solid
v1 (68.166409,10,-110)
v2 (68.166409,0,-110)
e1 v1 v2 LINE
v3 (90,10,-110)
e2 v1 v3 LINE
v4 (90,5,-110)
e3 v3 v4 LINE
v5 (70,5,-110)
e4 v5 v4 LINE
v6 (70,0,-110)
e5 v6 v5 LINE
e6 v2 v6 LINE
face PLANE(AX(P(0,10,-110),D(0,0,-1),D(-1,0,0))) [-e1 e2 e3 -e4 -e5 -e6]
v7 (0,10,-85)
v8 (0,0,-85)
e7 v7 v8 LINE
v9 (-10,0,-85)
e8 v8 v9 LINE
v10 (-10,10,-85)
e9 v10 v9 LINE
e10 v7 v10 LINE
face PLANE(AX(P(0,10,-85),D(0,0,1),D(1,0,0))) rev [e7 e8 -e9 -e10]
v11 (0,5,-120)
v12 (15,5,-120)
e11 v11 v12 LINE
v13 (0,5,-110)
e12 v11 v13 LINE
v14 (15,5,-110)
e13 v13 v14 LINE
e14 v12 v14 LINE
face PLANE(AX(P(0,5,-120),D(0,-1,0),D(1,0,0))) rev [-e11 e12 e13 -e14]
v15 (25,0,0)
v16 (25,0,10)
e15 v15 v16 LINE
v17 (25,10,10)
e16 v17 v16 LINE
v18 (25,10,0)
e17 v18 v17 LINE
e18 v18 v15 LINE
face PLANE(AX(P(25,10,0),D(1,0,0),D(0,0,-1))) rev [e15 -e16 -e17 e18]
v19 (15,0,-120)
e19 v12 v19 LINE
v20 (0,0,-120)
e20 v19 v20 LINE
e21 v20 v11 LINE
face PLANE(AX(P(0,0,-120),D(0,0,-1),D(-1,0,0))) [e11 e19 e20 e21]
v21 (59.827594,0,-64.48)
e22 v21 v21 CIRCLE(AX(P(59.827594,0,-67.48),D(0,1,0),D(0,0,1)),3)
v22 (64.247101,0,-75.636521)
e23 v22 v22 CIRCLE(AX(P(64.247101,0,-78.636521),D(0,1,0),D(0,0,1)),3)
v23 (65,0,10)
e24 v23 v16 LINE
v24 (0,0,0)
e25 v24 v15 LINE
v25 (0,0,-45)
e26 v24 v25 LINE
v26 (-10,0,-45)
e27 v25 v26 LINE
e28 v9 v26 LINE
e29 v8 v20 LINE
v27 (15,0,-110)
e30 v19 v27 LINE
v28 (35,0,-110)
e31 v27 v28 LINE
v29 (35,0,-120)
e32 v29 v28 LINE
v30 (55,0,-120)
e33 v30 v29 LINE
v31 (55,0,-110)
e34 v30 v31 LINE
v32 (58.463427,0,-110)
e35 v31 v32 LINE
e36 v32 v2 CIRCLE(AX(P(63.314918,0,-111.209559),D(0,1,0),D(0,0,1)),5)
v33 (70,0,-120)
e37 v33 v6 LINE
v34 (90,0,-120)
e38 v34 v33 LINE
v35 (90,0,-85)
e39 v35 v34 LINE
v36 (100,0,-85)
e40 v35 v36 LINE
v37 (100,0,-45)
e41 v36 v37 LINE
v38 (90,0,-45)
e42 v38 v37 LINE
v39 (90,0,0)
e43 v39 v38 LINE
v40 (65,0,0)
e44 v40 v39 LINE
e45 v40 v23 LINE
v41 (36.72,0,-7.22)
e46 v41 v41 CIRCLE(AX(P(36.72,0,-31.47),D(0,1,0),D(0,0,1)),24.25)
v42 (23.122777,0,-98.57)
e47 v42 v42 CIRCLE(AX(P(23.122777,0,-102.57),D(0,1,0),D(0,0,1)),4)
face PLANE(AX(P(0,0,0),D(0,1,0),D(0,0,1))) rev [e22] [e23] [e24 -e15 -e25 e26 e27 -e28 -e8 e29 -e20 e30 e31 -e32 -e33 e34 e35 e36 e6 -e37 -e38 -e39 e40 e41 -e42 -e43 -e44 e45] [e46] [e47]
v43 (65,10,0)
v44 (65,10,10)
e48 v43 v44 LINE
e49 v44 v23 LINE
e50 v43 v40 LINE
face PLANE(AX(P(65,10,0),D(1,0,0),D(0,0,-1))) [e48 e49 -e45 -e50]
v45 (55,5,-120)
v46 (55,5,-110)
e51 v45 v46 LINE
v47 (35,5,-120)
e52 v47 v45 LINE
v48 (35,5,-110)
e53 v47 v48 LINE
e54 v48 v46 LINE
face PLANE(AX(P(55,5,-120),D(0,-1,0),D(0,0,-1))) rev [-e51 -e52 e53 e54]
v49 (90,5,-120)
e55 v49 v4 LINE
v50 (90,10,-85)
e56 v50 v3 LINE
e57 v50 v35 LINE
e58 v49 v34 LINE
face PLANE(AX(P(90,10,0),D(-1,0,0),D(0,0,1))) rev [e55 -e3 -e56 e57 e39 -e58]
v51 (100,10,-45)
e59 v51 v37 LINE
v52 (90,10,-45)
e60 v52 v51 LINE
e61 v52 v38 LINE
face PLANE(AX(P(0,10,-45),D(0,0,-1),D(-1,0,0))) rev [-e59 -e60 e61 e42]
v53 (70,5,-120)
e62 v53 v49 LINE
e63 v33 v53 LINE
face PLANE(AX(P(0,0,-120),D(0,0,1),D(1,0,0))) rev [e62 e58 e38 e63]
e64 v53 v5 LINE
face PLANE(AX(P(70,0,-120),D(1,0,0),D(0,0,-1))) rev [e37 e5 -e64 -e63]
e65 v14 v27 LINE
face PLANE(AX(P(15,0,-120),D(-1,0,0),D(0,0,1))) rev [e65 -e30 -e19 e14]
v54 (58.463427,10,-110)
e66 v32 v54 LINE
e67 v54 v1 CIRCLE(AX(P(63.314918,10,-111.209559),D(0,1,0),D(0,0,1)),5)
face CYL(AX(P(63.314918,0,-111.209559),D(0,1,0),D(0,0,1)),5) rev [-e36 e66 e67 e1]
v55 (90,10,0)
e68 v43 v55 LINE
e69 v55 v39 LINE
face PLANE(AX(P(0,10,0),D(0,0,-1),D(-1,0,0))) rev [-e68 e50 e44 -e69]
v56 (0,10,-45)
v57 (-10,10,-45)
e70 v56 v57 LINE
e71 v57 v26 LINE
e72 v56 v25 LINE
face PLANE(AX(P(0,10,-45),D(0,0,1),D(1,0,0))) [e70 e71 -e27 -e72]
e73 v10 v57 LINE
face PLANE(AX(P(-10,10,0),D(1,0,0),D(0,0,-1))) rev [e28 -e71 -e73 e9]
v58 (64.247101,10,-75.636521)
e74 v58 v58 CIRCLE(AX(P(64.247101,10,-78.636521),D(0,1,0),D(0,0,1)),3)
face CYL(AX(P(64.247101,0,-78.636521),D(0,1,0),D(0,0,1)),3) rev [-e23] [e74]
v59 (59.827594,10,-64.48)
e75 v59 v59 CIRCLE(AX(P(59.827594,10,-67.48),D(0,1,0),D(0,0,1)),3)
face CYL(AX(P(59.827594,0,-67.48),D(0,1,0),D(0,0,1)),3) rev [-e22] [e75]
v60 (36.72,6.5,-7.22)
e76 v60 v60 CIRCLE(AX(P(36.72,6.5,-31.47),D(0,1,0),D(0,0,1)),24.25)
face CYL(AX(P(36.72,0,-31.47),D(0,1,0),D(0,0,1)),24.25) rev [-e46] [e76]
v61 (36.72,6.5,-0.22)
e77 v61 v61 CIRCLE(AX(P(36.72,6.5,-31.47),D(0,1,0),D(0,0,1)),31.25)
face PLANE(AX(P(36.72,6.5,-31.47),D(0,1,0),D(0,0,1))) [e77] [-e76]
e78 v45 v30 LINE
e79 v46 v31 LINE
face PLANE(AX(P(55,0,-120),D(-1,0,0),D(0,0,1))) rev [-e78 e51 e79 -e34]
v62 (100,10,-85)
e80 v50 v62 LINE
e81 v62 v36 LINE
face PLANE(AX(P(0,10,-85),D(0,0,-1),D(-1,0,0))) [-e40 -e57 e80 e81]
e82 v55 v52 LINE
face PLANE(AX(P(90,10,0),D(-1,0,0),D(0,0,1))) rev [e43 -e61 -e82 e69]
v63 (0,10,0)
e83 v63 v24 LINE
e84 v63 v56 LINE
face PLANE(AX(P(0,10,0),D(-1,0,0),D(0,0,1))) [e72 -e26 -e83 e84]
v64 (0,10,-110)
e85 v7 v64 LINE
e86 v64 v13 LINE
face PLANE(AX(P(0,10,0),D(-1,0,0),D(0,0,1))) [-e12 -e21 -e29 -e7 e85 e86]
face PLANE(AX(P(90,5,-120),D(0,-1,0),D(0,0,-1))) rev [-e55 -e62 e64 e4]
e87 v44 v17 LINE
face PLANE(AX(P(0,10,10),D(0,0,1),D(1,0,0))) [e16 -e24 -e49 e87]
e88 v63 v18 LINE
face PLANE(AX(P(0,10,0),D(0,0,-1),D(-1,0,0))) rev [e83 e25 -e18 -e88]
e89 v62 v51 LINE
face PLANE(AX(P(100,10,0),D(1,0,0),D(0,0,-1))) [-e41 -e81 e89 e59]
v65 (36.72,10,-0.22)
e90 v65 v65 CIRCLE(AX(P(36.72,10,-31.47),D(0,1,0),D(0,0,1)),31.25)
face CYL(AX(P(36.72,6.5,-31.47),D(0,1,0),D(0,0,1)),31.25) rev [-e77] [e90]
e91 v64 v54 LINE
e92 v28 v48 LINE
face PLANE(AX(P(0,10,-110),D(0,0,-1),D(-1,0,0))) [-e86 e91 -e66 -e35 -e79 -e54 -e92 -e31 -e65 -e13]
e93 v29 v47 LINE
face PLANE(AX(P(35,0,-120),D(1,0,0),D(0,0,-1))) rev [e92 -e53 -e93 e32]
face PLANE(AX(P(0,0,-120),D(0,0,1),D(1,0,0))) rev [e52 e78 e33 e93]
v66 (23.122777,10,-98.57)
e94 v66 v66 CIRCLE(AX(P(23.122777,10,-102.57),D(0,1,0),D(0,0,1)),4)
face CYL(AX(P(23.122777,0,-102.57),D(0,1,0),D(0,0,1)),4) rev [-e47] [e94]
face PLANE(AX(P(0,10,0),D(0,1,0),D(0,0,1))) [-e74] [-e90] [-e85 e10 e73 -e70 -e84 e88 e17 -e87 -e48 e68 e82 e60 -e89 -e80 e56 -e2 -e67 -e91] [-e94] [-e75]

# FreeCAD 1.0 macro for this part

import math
import FreeCAD as App
import Part
import Sketcher

V = App.Vector


def add_polygon(sketch, points):
    """Adds a closed chain of lines whose ends are joined by coincident constraints."""
    first, n = sketch.GeometryCount, len(points)
    for a, b in zip(points, points[1:] + points[:1]):
        sketch.addGeometry(Part.LineSegment(App.Vector(*a, 0), App.Vector(*b, 0)), False)
    for i in range(n):
        sketch.addConstraint(Sketcher.Constraint("Coincident", first + i, 2, first + (i + 1) % n, 1))

doc = App.newDocument("Part")
params = doc.addObject("Spreadsheet::Sheet", "Params")
for row, (alias, value) in enumerate([
    ("sketch1_width", "25 mm"),
    ("sketch1_width2", "40 mm"),
    ("sketch1_width3", "10 mm"),
    ("sketch1_height", "45 mm"),
    ("pad1_length", "10 mm"),
    ("sketch2_diameter", "8 mm"),
    ("sketch3_radius", "3 mm"),
    ("sketch4_diameter", "62.5 mm"),
    ("pocket3_length", "3.5 mm"),
    ("sketch5_diameter", "48.5 mm"),
    ("sketch6_diameter", "10 mm"),
    ("sketch7_width", "20 mm"),
    ("sketch7_width2", "15 mm"),
    ("sketch7_height", "5 mm"),
    ("pad2_length", "10 mm"),
], start=1):
    params.set(f"A{row}", alias)
    params.set(f"B{row}", "=" + value)
    params.setAlias(f"B{row}", alias)

body = doc.addObject("PartDesign::Body", "Body")

# Sketch on XZ plane
sketch1 = doc.addObject("Sketcher::SketchObject", "Sketch")
body.addObject(sketch1)
sketch1.AttachmentSupport = (doc.XZ_Plane, [""])
sketch1.MapMode = "FlatFace"
add_polygon(sketch1, [(0, -45), (0, 0), (25, 0), (25, 10), (65, 10), (65, 0), (90, 0), (90, -45), (100, -45), (100, -85), (90, -85), (90, -110), (0, -110), (0, -85), (-10, -85), (-10, -45)])  # lines 0-15
sketch1.addConstraint([
    Sketcher.Constraint("Vertical", 0),
    Sketcher.Constraint("Horizontal", 1),
    Sketcher.Constraint("Vertical", 2),
    Sketcher.Constraint("Horizontal", 3),
    Sketcher.Constraint("Vertical", 4),
    Sketcher.Constraint("Horizontal", 5),
    Sketcher.Constraint("Vertical", 6),
    Sketcher.Constraint("Horizontal", 7),
    Sketcher.Constraint("Vertical", 8),
    Sketcher.Constraint("Horizontal", 9),
    Sketcher.Constraint("Vertical", 10),
    Sketcher.Constraint("Horizontal", 11),
    Sketcher.Constraint("Vertical", 12),
    Sketcher.Constraint("Horizontal", 13),
    Sketcher.Constraint("Vertical", 14),
    Sketcher.Constraint("Horizontal", 15),
    Sketcher.Constraint("Coincident", 0, 2, -1, 1),
    Sketcher.Constraint("PointOnObject", 4, 2, -1),
    Sketcher.Constraint("PointOnObject", 11, 2, -2),
    Sketcher.Constraint("Horizontal", 9, 2, 12, 2),
    Sketcher.Constraint("Horizontal", 7, 2, 14, 2),
    Sketcher.Constraint("Vertical", 6, 2, 9, 2),
    Sketcher.Constraint("Equal", 1, 5),
    Sketcher.Constraint("Equal", 9, 13),
    Sketcher.Constraint("Equal", 15, 2),
    Sketcher.Constraint("Equal", 3, 8),
    Sketcher.Constraint("Equal", 5, 10),
    Sketcher.Constraint("DistanceX", 1, 1, 1, 2, 25.0),
    Sketcher.Constraint("DistanceX", 3, 1, 3, 2, 40.0),
    Sketcher.Constraint("DistanceX", 7, 1, 7, 2, 10.0),
    Sketcher.Constraint("DistanceY", 0, 1, 0, 2, 45.0),
])
sketch1.setExpression("Constraints[43]", "Params.sketch1_width")
sketch1.setExpression("Constraints[44]", "Params.sketch1_width2")
sketch1.setExpression("Constraints[45]", "Params.sketch1_width3")
sketch1.setExpression("Constraints[46]", "Params.sketch1_height")
pad1 = doc.addObject("PartDesign::Pad", "Pad")
body.addObject(pad1)
pad1.Profile = sketch1
pad1.setExpression("Length", "Params.pad1_length")
pad1.Reversed = True

# Sketch on XZ plane
sketch2 = doc.addObject("Sketcher::SketchObject", "Sketch001")
body.addObject(sketch2)
sketch2.AttachmentSupport = (doc.XZ_Plane, [""])
sketch2.MapMode = "FlatFace"
sketch2.AttachmentOffset = App.Placement(V(0, 0, -10), App.Rotation())
sketch2.addGeometry([
    Part.Circle(V(23.1, -102.6, 0), V(0, 0, 1), 4),
    Part.Circle(V(23.1, -120.4, 0), V(0, 0, 1), 4),
], False)
sketch2.addConstraint([
    Sketcher.Constraint("Equal", 0, 1),
    Sketcher.Constraint("Vertical", 0, 3, 1, 3),
    Sketcher.Constraint("Diameter", 0, 8.0),
    Sketcher.Constraint("DistanceY", 0, 3, -1, 1, 102.57),
    Sketcher.Constraint("DistanceY", 1, 3, -1, 1, 120.41),
    Sketcher.Constraint("DistanceX", -1, 1, 0, 3, 23.122777),
])
sketch2.setExpression("Constraints[2]", "Params.sketch2_diameter")
pocket1 = doc.addObject("PartDesign::Pocket", "Pocket")
body.addObject(pocket1)
pocket1.Profile = sketch2
pocket1.Type = "ThroughAll"
pocket1.Reversed = True

# Sketch on XZ plane
sketch3 = doc.addObject("Sketcher::SketchObject", "Sketch002")
body.addObject(sketch3)
sketch3.AttachmentSupport = (doc.XZ_Plane, [""])
sketch3.MapMode = "FlatFace"
sketch3.AttachmentOffset = App.Placement(V(0, 0, -10), App.Rotation())
sketch3.addGeometry([
    Part.ArcOfCircle(Part.Circle(V(64.2, -78.6, 0), V(0, 0, 1), 3), math.radians(112), math.radians(292)),  # 0
    Part.ArcOfCircle(Part.Circle(V(64.2, -78.6, 0), V(0, 0, 1), 3), math.radians(0), math.radians(112)),  # 1
    Part.ArcOfCircle(Part.Circle(V(64.2, -78.6, 0), V(0, 0, 1), 3), math.radians(-68), math.radians(0)),  # 2
    Part.ArcOfCircle(Part.Circle(V(59.8, -67.5, 0), V(0, 0, 1), 3), math.radians(-68), math.radians(0)),  # 3
    Part.ArcOfCircle(Part.Circle(V(59.8, -67.5, 0), V(0, 0, 1), 3), math.radians(-180), math.radians(-68)),  # 4
    Part.ArcOfCircle(Part.Circle(V(59.8, -67.5, 0), V(0, 0, 1), 3), math.radians(112), math.radians(180)),  # 5
    Part.ArcOfCircle(Part.Circle(V(59.8, -67.5, 0), V(0, 0, 1), 3), math.radians(0), math.radians(112)),  # 6
], False)
sketch3.addConstraint([
    Sketcher.Constraint("Tangent", 0, 1, 1, 2),
    Sketcher.Constraint("Tangent", 1, 1, 2, 2),
    Sketcher.Constraint("Tangent", 2, 1, 0, 2),
    Sketcher.Constraint("Tangent", 3, 1, 4, 2),
    Sketcher.Constraint("Tangent", 4, 1, 5, 2),
    Sketcher.Constraint("Tangent", 5, 1, 6, 2),
    Sketcher.Constraint("Tangent", 6, 1, 3, 2),
    Sketcher.Constraint("Equal", 2, 3),
    Sketcher.Constraint("Equal", 3, 4),
    Sketcher.Constraint("Horizontal", 2, 3, 1, 1),
    Sketcher.Constraint("Horizontal", 6, 3, 4, 1),
    Sketcher.Constraint("Horizontal", 4, 1, 6, 1),
    Sketcher.Constraint("Radius", 0, 3.0),
    Sketcher.Constraint("DistanceY", 3, 3, -1, 1, 67.48),
    Sketcher.Constraint("DistanceX", -1, 1, 0, 3, 64.247101),
    Sketcher.Constraint("DistanceY", 0, 3, -1, 1, 78.636521),
    Sketcher.Constraint("DistanceY", 0, 1, -1, 1, 75.847391),
    Sketcher.Constraint("DistanceY", 2, 1, -1, 1, 81.425651),
    Sketcher.Constraint("DistanceX", -1, 1, 3, 1, 60.932471),
    Sketcher.Constraint("DistanceY", 3, 1, -1, 1, 70.26913),
    Sketcher.Constraint("DistanceY", 5, 1, -1, 1, 64.69087),
])
sketch3.setExpression("Constraints[12]", "Params.sketch3_radius")
pocket2 = doc.addObject("PartDesign::Pocket", "Pocket001")
body.addObject(pocket2)
pocket2.Profile = sketch3
pocket2.Type = "ThroughAll"
pocket2.Reversed = True

# Sketch on XZ plane
sketch4 = doc.addObject("Sketcher::SketchObject", "Sketch003")
body.addObject(sketch4)
sketch4.AttachmentSupport = (doc.XZ_Plane, [""])
sketch4.MapMode = "FlatFace"
sketch4.AttachmentOffset = App.Placement(V(0, 0, -10), App.Rotation())
sketch4.addGeometry(Part.Circle(V(37, -31, 0), V(0, 0, 1), 31), False)
sketch4.addConstraint([
    Sketcher.Constraint("Diameter", 0, 62.5),
    Sketcher.Constraint("DistanceX", -1, 1, 0, 3, 36.72),
    Sketcher.Constraint("DistanceY", 0, 3, -1, 1, 31.47),
])
sketch4.setExpression("Constraints[0]", "Params.sketch4_diameter")
pocket3 = doc.addObject("PartDesign::Pocket", "Pocket002")
body.addObject(pocket3)
pocket3.Profile = sketch4
pocket3.setExpression("Length", "Params.pocket3_length")
pocket3.Reversed = True

# Sketch on XZ plane
sketch5 = doc.addObject("Sketcher::SketchObject", "Sketch004")
body.addObject(sketch5)
sketch5.AttachmentSupport = (doc.XZ_Plane, [""])
sketch5.MapMode = "FlatFace"
sketch5.AttachmentOffset = App.Placement(V(0, 0, -6.5), App.Rotation())
sketch5.addGeometry(Part.Circle(V(37, -31, 0), V(0, 0, 1), 24), False)
sketch5.addConstraint([
    Sketcher.Constraint("Diameter", 0, 48.5),
    Sketcher.Constraint("DistanceX", -1, 1, 0, 3, 36.72),
    Sketcher.Constraint("DistanceY", 0, 3, -1, 1, 31.47),
])
sketch5.setExpression("Constraints[0]", "Params.sketch5_diameter")
pocket4 = doc.addObject("PartDesign::Pocket", "Pocket003")
body.addObject(pocket4)
pocket4.Profile = sketch5
pocket4.Type = "ThroughAll"
pocket4.Reversed = True

# Sketch on XZ plane
sketch6 = doc.addObject("Sketcher::SketchObject", "Sketch005")
body.addObject(sketch6)
sketch6.AttachmentSupport = (doc.XZ_Plane, [""])
sketch6.MapMode = "FlatFace"
sketch6.AttachmentOffset = App.Placement(V(0, 0, -10), App.Rotation())
sketch6.addGeometry(Part.Circle(V(63, -111, 0), V(0, 0, 1), 5), False)
sketch6.addConstraint([
    Sketcher.Constraint("Diameter", 0, 10.0),
    Sketcher.Constraint("DistanceY", 0, 3, -1, 1, 111.209559),
    Sketcher.Constraint("DistanceX", -1, 1, 0, 3, 63.314918),
])
sketch6.setExpression("Constraints[0]", "Params.sketch6_diameter")
pocket5 = doc.addObject("PartDesign::Pocket", "Pocket004")
body.addObject(pocket5)
pocket5.Profile = sketch6
pocket5.Type = "ThroughAll"
pocket5.Reversed = True

# Sketch on XY plane
sketch7 = doc.addObject("Sketcher::SketchObject", "Sketch006")
body.addObject(sketch7)
sketch7.AttachmentSupport = (doc.XY_Plane, [""])
sketch7.MapMode = "FlatFace"
sketch7.AttachmentOffset = App.Placement(V(0, 0, -110), App.Rotation())
add_polygon(sketch7, [(90, 5), (90, 0), (70, 0), (70, 5)])  # lines 0-3
add_polygon(sketch7, [(15, 5), (15, 0), (0, 0), (0, 5)])  # lines 4-7
add_polygon(sketch7, [(55, 5), (55, 0), (35, 0), (35, 5)])  # lines 8-11
sketch7.addConstraint([
    Sketcher.Constraint("Vertical", 0),
    Sketcher.Constraint("Horizontal", 1),
    Sketcher.Constraint("Vertical", 2),
    Sketcher.Constraint("Horizontal", 3),
    Sketcher.Constraint("Vertical", 4),
    Sketcher.Constraint("Horizontal", 5),
    Sketcher.Constraint("Vertical", 6),
    Sketcher.Constraint("Horizontal", 7),
    Sketcher.Constraint("Vertical", 8),
    Sketcher.Constraint("Horizontal", 9),
    Sketcher.Constraint("Vertical", 10),
    Sketcher.Constraint("Horizontal", 11),
    Sketcher.Constraint("Coincident", 5, 2, -1, 1),
    Sketcher.Constraint("PointOnObject", 0, 2, -1),
    Sketcher.Constraint("PointOnObject", 8, 2, -1),
    Sketcher.Constraint("Horizontal", 3, 2, 6, 2),
    Sketcher.Constraint("Horizontal", 7, 2, 10, 2),
    Sketcher.Constraint("Equal", 3, 9),
    Sketcher.Constraint("DistanceX", 1, 2, 1, 1, 20.0),
    Sketcher.Constraint("DistanceX", 5, 2, 5, 1, 15.0),
    Sketcher.Constraint("DistanceY", 0, 2, 0, 1, 5.0),
    Sketcher.Constraint("DistanceX", -1, 1, 0, 2, 90.0),
    Sketcher.Constraint("DistanceX", -1, 1, 8, 2, 55.0),
])
sketch7.setExpression("Constraints[30]", "Params.sketch7_width")
sketch7.setExpression("Constraints[31]", "Params.sketch7_width2")
sketch7.setExpression("Constraints[32]", "Params.sketch7_height")
pad2 = doc.addObject("PartDesign::Pad", "Pad001")
body.addObject(pad2)
pad2.Profile = sketch7
pad2.setExpression("Length", "Params.pad2_length")
pad2.Reversed = True

doc.recompute()
